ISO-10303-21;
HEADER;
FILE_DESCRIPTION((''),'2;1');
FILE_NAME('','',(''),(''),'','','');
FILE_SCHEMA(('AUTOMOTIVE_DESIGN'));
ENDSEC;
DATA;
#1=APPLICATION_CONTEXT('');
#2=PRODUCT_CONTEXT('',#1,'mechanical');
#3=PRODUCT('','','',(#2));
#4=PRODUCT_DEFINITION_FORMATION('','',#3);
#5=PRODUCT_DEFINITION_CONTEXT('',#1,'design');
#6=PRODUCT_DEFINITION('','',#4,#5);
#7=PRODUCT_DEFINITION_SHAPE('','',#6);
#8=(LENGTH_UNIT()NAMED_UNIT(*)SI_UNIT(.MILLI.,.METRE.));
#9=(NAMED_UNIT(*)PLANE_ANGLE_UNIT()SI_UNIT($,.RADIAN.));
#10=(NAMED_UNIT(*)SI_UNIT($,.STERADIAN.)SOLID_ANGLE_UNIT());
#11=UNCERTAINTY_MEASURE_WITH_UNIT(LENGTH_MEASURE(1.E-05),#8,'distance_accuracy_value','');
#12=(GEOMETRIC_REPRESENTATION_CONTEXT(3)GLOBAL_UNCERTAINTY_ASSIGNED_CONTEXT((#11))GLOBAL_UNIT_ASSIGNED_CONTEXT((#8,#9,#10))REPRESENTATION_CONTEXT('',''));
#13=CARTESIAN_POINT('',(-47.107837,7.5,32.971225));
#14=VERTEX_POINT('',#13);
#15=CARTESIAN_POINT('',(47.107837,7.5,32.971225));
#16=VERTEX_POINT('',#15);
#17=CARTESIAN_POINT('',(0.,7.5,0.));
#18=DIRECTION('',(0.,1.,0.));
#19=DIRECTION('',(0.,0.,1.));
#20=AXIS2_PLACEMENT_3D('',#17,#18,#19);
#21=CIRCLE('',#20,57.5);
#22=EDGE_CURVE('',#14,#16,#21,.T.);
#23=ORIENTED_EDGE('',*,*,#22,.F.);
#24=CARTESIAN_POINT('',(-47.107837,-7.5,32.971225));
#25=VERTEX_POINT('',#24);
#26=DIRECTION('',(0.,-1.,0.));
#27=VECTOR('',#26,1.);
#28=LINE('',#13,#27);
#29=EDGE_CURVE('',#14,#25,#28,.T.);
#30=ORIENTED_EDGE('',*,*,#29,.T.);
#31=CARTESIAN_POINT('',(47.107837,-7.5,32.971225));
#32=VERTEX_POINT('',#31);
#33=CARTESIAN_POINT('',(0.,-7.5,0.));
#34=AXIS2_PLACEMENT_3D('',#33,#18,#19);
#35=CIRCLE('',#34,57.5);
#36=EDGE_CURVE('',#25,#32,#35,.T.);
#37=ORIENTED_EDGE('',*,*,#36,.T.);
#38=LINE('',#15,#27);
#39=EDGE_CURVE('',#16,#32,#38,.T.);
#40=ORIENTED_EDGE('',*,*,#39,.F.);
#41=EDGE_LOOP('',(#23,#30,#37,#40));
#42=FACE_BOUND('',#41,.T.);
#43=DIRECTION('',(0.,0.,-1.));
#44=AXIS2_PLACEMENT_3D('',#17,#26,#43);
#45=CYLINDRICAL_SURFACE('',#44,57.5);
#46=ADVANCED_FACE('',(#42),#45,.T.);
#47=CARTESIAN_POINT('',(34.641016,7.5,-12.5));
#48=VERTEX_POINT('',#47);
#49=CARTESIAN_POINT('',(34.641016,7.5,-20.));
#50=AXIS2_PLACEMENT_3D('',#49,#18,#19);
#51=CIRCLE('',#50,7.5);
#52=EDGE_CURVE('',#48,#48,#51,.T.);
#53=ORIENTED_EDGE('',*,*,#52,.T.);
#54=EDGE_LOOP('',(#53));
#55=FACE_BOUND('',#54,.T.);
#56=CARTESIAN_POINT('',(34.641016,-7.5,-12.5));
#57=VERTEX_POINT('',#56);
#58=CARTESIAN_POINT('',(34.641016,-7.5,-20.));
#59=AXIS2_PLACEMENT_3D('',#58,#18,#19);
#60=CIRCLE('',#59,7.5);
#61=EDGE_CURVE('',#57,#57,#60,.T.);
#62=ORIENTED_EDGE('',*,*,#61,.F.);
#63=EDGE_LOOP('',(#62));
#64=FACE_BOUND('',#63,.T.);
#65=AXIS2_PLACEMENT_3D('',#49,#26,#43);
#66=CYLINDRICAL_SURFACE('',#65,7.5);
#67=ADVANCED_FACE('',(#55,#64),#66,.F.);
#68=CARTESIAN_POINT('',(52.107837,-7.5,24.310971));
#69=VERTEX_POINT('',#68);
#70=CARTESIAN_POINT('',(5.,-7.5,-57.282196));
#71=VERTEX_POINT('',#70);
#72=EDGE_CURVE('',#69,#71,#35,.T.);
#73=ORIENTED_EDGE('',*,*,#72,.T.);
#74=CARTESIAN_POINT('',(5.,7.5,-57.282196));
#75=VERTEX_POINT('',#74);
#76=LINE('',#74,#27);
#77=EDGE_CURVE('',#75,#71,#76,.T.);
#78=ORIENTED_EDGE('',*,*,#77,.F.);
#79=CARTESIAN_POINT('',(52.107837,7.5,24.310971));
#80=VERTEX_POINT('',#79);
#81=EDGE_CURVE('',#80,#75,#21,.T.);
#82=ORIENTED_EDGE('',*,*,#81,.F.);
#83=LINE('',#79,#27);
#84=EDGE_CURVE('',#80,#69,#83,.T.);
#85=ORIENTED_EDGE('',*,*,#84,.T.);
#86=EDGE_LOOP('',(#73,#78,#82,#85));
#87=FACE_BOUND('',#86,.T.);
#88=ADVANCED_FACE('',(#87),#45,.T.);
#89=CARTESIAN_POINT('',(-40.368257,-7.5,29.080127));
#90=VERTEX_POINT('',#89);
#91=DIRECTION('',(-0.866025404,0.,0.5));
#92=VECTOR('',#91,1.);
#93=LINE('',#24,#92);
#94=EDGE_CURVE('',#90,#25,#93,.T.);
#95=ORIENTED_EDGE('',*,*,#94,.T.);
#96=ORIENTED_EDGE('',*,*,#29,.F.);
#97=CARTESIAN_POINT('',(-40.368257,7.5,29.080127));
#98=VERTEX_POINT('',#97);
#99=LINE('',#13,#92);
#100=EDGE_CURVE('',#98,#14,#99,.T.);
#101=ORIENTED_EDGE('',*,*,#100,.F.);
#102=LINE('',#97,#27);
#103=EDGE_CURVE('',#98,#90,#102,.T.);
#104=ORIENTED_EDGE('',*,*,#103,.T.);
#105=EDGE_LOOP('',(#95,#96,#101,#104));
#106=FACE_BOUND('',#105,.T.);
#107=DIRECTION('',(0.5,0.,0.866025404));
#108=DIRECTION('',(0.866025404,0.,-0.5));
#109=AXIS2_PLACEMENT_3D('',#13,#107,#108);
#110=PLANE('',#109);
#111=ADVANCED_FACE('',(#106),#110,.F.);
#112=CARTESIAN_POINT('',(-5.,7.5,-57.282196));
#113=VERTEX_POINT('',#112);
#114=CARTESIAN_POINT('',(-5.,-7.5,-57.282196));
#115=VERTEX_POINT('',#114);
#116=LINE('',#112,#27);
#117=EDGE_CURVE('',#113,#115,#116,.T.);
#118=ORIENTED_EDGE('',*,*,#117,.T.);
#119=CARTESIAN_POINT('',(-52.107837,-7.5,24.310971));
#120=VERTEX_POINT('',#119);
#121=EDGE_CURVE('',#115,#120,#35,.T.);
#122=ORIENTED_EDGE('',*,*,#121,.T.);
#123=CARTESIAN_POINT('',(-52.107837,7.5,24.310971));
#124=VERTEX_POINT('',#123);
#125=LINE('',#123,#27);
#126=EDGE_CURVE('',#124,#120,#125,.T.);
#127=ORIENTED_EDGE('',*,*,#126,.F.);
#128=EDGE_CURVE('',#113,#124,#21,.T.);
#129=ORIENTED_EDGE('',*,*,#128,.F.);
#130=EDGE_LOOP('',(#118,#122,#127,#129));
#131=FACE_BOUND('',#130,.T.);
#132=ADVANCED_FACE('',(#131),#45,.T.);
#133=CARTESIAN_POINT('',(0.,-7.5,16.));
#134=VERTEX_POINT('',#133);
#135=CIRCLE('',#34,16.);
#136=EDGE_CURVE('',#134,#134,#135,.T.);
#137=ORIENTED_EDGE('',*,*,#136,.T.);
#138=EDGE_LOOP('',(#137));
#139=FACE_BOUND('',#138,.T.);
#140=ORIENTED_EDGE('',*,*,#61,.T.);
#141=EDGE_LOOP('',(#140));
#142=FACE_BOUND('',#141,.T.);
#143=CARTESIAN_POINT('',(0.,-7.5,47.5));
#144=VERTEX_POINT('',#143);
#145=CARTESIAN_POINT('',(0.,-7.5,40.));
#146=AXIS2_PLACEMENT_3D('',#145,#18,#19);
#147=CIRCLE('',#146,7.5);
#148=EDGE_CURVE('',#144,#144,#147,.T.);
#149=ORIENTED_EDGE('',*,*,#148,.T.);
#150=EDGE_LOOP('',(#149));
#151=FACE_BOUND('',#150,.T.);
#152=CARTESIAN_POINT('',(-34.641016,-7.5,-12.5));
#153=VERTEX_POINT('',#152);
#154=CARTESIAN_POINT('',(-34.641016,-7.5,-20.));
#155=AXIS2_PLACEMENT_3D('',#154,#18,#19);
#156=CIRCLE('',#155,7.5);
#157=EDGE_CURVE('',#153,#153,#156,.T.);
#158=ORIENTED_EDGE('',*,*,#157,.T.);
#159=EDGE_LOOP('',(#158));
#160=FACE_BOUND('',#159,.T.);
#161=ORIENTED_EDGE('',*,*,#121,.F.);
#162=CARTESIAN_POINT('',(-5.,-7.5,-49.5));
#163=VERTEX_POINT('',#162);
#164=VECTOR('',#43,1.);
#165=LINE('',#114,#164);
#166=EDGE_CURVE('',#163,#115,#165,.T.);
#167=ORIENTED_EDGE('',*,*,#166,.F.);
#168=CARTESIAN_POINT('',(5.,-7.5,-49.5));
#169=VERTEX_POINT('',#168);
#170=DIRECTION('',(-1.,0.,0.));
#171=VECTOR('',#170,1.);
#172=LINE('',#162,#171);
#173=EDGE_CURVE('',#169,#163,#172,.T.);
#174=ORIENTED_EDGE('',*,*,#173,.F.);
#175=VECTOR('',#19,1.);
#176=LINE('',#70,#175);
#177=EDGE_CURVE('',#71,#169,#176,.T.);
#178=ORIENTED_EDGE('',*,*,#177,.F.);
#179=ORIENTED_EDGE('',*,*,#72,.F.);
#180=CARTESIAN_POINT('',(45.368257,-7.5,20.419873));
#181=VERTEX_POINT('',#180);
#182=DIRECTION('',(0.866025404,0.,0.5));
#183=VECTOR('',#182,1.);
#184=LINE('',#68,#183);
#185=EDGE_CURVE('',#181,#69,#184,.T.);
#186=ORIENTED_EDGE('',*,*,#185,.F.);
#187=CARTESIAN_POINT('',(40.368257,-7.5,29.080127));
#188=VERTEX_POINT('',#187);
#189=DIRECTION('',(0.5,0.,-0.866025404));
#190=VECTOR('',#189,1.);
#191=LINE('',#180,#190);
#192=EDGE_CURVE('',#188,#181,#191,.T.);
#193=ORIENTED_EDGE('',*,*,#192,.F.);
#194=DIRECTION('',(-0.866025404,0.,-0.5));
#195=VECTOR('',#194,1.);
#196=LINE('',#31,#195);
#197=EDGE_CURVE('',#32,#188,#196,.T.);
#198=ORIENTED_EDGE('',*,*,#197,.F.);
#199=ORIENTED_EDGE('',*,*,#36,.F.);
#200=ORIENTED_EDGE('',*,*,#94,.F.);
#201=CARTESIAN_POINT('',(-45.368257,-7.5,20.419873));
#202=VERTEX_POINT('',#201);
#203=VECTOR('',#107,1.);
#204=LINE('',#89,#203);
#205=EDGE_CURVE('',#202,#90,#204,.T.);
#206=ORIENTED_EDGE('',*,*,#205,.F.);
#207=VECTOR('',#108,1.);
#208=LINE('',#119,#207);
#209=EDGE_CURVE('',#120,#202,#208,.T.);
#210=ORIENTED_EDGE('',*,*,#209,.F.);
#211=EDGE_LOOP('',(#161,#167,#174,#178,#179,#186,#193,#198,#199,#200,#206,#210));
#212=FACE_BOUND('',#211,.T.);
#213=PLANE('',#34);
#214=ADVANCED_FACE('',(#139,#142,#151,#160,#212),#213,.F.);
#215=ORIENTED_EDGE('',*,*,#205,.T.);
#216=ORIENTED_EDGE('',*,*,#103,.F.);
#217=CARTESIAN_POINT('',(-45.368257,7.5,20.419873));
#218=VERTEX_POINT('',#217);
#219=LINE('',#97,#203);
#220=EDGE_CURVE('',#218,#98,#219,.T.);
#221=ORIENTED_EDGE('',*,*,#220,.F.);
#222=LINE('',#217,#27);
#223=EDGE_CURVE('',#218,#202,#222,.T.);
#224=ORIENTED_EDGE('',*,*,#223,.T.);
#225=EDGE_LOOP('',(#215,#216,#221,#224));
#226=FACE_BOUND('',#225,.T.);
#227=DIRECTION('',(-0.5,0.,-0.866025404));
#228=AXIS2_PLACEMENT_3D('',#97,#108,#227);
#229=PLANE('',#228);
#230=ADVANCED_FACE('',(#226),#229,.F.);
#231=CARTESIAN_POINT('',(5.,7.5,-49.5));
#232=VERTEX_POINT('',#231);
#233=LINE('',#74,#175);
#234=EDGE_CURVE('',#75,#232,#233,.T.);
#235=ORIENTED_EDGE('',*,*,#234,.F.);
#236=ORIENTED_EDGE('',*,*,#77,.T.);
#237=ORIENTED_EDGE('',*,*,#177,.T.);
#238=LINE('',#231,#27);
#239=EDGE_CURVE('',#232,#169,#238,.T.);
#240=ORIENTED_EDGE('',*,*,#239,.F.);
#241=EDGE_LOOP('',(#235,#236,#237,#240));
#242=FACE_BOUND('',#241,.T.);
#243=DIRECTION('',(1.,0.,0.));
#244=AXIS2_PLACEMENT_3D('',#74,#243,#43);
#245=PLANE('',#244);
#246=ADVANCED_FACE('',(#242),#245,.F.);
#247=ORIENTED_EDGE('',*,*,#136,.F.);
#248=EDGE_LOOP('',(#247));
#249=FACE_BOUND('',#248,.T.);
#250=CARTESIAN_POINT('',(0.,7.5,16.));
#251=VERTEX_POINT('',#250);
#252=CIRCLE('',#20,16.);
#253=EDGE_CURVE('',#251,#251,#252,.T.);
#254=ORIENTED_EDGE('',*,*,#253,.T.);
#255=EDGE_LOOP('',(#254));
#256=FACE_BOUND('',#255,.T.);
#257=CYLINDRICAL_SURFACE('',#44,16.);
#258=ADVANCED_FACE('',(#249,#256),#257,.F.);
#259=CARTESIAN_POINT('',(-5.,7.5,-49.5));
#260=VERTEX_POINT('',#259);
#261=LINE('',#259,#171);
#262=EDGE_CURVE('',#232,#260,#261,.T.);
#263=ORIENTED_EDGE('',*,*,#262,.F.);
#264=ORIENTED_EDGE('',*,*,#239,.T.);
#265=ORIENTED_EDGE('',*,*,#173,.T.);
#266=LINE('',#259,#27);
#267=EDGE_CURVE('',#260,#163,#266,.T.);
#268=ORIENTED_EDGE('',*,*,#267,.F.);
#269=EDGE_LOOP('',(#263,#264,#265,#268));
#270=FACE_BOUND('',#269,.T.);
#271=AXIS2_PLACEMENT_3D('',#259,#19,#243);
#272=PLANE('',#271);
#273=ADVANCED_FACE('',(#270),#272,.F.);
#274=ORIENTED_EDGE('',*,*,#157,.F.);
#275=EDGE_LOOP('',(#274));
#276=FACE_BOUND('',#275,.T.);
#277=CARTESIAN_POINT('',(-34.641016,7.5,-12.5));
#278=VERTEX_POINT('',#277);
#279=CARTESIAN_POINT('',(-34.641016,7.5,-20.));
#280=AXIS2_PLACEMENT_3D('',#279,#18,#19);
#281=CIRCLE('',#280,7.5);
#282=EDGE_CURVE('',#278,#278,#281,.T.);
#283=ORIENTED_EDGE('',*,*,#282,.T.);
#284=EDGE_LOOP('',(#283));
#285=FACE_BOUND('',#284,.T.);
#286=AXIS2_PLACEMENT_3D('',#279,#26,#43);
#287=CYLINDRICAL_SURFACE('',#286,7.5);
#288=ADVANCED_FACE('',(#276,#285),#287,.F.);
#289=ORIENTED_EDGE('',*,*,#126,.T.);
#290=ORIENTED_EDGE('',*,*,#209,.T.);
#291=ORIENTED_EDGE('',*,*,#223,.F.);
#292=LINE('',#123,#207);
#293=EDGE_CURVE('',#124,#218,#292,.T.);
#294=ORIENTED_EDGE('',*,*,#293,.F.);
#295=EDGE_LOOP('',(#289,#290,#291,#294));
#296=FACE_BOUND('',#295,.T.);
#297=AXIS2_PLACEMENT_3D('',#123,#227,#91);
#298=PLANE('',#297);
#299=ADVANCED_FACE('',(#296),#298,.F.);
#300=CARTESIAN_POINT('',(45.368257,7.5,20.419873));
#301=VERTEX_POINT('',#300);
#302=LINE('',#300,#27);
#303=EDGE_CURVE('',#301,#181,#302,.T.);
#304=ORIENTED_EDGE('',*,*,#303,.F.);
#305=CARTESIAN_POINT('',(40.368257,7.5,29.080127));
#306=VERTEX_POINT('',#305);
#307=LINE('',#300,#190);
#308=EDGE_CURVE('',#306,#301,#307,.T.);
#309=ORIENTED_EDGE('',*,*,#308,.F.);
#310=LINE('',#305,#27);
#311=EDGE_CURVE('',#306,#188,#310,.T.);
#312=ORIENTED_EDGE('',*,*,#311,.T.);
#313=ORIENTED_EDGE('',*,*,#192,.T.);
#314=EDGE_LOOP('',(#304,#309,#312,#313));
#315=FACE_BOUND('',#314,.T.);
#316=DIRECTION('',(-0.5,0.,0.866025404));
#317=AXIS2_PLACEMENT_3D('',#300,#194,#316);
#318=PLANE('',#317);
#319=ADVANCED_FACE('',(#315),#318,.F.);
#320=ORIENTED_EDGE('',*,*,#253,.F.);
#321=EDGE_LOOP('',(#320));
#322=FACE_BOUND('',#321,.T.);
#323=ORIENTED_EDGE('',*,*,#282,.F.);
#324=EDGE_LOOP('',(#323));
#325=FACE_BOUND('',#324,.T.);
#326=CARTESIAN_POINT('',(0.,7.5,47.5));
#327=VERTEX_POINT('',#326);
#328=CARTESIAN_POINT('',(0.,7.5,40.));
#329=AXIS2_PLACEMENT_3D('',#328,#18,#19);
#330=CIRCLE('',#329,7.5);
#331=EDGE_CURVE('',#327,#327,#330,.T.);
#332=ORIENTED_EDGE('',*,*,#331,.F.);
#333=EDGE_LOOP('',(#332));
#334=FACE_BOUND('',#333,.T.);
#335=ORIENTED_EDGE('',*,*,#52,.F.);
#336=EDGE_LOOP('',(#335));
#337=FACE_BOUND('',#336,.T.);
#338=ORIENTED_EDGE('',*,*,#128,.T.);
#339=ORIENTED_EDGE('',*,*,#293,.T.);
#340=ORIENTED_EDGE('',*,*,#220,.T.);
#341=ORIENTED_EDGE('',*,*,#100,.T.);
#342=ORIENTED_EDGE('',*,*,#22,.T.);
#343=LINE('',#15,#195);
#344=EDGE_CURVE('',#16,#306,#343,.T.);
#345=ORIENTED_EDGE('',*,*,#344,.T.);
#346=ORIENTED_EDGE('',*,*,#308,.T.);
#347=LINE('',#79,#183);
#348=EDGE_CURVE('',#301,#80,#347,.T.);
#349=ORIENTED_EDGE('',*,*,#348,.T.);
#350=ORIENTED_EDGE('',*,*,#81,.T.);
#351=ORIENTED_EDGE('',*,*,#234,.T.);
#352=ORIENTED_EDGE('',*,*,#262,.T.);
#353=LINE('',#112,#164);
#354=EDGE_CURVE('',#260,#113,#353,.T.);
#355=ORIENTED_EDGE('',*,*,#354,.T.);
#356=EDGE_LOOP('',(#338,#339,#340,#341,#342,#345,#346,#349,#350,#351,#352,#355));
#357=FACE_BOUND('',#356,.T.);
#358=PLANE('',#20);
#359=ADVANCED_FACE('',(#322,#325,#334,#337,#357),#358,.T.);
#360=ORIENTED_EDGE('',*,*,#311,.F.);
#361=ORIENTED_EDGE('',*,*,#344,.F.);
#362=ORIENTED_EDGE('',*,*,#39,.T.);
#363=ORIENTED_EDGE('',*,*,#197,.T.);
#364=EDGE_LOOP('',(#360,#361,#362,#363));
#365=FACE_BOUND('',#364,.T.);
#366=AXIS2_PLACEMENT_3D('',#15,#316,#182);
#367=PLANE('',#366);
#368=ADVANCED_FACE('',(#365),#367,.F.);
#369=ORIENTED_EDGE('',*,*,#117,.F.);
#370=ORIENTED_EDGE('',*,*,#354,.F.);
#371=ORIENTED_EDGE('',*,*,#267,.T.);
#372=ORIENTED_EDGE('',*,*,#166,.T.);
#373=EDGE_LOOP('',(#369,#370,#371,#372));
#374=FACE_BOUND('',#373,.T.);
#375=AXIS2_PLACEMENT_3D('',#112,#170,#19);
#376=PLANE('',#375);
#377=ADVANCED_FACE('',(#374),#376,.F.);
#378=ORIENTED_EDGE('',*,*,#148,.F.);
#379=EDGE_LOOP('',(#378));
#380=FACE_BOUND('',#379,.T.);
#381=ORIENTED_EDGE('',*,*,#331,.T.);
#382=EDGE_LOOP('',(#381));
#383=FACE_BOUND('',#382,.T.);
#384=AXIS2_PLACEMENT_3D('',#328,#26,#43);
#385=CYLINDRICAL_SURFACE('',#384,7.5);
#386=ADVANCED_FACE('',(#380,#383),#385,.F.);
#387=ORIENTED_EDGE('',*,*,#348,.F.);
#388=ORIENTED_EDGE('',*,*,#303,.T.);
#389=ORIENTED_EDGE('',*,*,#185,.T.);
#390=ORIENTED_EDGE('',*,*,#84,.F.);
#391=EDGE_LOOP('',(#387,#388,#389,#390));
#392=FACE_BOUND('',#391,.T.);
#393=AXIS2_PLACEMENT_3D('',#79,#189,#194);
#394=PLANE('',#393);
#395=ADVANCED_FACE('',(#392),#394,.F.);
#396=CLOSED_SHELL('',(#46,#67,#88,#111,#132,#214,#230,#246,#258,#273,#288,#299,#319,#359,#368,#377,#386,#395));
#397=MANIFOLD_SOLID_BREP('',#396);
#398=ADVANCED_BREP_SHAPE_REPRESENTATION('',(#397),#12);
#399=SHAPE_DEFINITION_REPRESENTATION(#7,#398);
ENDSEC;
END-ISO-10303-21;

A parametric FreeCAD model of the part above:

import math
import FreeCAD as App
import Part
import Sketcher

V = App.Vector
Q = App.Units.Quantity

doc = App.newDocument("Part")
body = doc.addObject("PartDesign::Body", "Body")

# Sketch on XZ plane
sketch1 = body.newObject("Sketcher::SketchObject", "Sketch")
sketch1.AttachmentSupport = (doc.getObject("XZ_Plane"), [""])
sketch1.MapMode = "FlatFace"
sketch1.addGeometry([
    Part.LineSegment(V(45, 20, 0), V(52, 24, 0)),  # 0
    Part.ArcOfCircle(Part.Circle(V(0, 0, 0), V(0, 0, 1), 57), math.radians(-85), math.radians(25)),  # 1
    Part.LineSegment(V(5, -57, 0), V(5, -50, 0)),  # 2
    Part.LineSegment(V(5, -50, 0), V(-5, -50, 0)),  # 3
    Part.LineSegment(V(-5, -50, 0), V(-5, -57, 0)),  # 4
    Part.ArcOfCircle(Part.Circle(V(0, 0, 0), V(0, 0, 1), 57), math.radians(155), math.radians(265)),  # 5
    Part.LineSegment(V(-52, 24, 0), V(-45, 20, 0)),  # 6
    Part.LineSegment(V(-45, 20, 0), V(-40, 29, 0)),  # 7
    Part.LineSegment(V(-40, 29, 0), V(-47, 33, 0)),  # 8
    Part.ArcOfCircle(Part.Circle(V(0, 0, 0), V(0, 0, 1), 57), math.radians(35), math.radians(145)),  # 9
    Part.LineSegment(V(47, 33, 0), V(40, 29, 0)),  # 10
    Part.LineSegment(V(40, 29, 0), V(45, 20, 0)),  # 11
    Part.Circle(V(0, 40, 0), V(0, 0, 1), 8),  # 12
    Part.Circle(V(35, -20, 0), V(0, 0, 1), 8),  # 13
    Part.Circle(V(0, 0, 0), V(0, 0, 1), 16),  # 14
    Part.Circle(V(-35, -20, 0), V(0, 0, 1), 8),  # 15
], False)
sketch1.addConstraint([
    Sketcher.Constraint("Coincident", 0, 2, 1, 2),
    Sketcher.Constraint("Coincident", 1, 1, 2, 1),
    Sketcher.Constraint("Coincident", 2, 2, 3, 1),
    Sketcher.Constraint("Coincident", 3, 2, 4, 1),
    Sketcher.Constraint("Coincident", 4, 2, 5, 2),
    Sketcher.Constraint("Coincident", 5, 1, 6, 1),
    Sketcher.Constraint("Coincident", 6, 2, 7, 1),
    Sketcher.Constraint("Coincident", 7, 2, 8, 1),
    Sketcher.Constraint("Coincident", 8, 2, 9, 2),
    Sketcher.Constraint("Coincident", 9, 1, 10, 1),
    Sketcher.Constraint("Coincident", 10, 2, 11, 1),
    Sketcher.Constraint("Coincident", 11, 2, 0, 1),
    Sketcher.Constraint("Vertical", 2),
    Sketcher.Constraint("Horizontal", 3),
    Sketcher.Constraint("Vertical", 4),
    Sketcher.Constraint("Coincident", 1, 3, -1, 1),
    Sketcher.Constraint("Coincident", 5, 3, -1, 1),
    Sketcher.Constraint("Coincident", 9, 3, -1, 1),
    Sketcher.Constraint("Coincident", 14, 3, -1, 1),
    Sketcher.Constraint("Equal", 1, 5),
    Sketcher.Constraint("Equal", 5, 9),
    Sketcher.Constraint("Equal", 12, 13),
    Sketcher.Constraint("Equal", 13, 15),
    Sketcher.Constraint("Symmetric", 13, 3, 15, 3, -2),
    Sketcher.Constraint("Symmetric", 7, 2, 10, 2, -2),
    Sketcher.Constraint("Symmetric", 6, 2, 11, 2, -2),
    Sketcher.Constraint("PointOnObject", 12, 3, -2),
    Sketcher.Constraint("Perpendicular", 6, 7),
    Sketcher.Constraint("Perpendicular", 7, 8),
    Sketcher.Constraint("Parallel", 0, 10),
    Sketcher.Constraint("Perpendicular", 10, 11),
    Sketcher.Constraint("Horizontal", 1, 1, 4, 2),
    Sketcher.Constraint("Equal", 6, 8),
    Sketcher.Constraint("Diameter", 12, Q("15 mm")),
    Sketcher.Constraint("Diameter", 14, Q("32 mm")),
    Sketcher.Constraint("Radius", 1, Q("57.5 mm")),
    Sketcher.Constraint("DistanceX", 3, 2, 3, 1, Q("10 mm")),
    Sketcher.Constraint("Angle", 0, Q("30 deg")),
    Sketcher.Constraint("Distance", 7, Q("10 mm")),
    Sketcher.Constraint("DistanceY", -1, 1, 12, 3, Q("40 mm")),
    Sketcher.Constraint("DistanceY", 13, 3, -1, 1, Q("20 mm")),
    Sketcher.Constraint("DistanceY", 2, 2, -1, 1, Q("49.5 mm")),
    Sketcher.Constraint("DistanceY", 6, 2, 5, 1, Q("3.891098 mm")),
    Sketcher.Constraint("DistanceX", 13, 3, 0, 2, Q("17.466821 mm")),
])
pad1 = body.newObject("PartDesign::Pad", "Pad")
pad1.Profile = sketch1
pad1.Length = 15
pad1.Midplane = True

doc.recompute()
